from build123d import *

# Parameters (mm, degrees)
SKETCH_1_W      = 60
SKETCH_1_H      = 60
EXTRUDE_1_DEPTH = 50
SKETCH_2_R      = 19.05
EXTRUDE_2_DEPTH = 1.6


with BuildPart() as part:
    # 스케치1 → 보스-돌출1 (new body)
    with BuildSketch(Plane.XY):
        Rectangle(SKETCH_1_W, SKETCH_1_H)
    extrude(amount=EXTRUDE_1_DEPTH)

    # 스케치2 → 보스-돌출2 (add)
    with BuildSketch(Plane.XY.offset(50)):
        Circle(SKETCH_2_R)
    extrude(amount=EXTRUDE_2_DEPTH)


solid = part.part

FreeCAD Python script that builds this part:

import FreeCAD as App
import Part
import Sketcher
Q = App.Units.Quantity

doc = App.newDocument("Part")
body = doc.addObject("PartDesign::Body", "Body")

sketch1 = body.newObject("Sketcher::SketchObject", "Sketch")
sketch1.AttachmentSupport = (doc.getObject("XY_Plane"), [""])
sketch1.MapMode = "FlatFace"
sketch1.addGeometry(Part.LineSegment(App.Vector(-30, 30, 0), App.Vector(-30, -30, 0)), False)
sketch1.addGeometry(Part.LineSegment(App.Vector(-30, -30, 0), App.Vector(30, -30, 0)), False)
sketch1.addGeometry(Part.LineSegment(App.Vector(30, -30, 0), App.Vector(30, 30, 0)), False)
sketch1.addGeometry(Part.LineSegment(App.Vector(30, 30, 0), App.Vector(-30, 30, 0)), False)
sketch1.addConstraint(Sketcher.Constraint("Coincident", 0, 2, 1, 1))
sketch1.addConstraint(Sketcher.Constraint("Coincident", 1, 2, 2, 1))
sketch1.addConstraint(Sketcher.Constraint("Coincident", 2, 2, 3, 1))
sketch1.addConstraint(Sketcher.Constraint("Coincident", 3, 2, 0, 1))
sketch1.addConstraint(Sketcher.Constraint("Vertical", 0))
sketch1.addConstraint(Sketcher.Constraint("Horizontal", 1))
sketch1.addConstraint(Sketcher.Constraint("Vertical", 2))
sketch1.addConstraint(Sketcher.Constraint("Horizontal", 3))
sketch1.addConstraint(Sketcher.Constraint("Symmetric", 0, 2, 2, 2, -1, 1))
sketch1.addConstraint(Sketcher.Constraint("Equal", 3, 0))
sketch1.addConstraint(Sketcher.Constraint("DistanceX", 1, 1, 1, 2, Q("60 mm")))
pad1 = body.newObject("PartDesign::Pad", "Pad")
pad1.Profile = sketch1
pad1.Length = 50

sketch2 = body.newObject("Sketcher::SketchObject", "Sketch001")
sketch2.AttachmentSupport = (doc.getObject("XY_Plane"), [""])
sketch2.MapMode = "FlatFace"
sketch2.AttachmentOffset = App.Placement(App.Vector(0, 0, 50), App.Rotation())
sketch2.addGeometry(Part.Circle(App.Vector(0, 0, 0), App.Vector(0, 0, 1), 19), False)
sketch2.addConstraint(Sketcher.Constraint("Coincident", 0, 3, -1, 1))
sketch2.addConstraint(Sketcher.Constraint("Diameter", 0, Q("38.1 mm")))
pad2 = body.newObject("PartDesign::Pad", "Pad001")
pad2.Profile = sketch2
pad2.Length = 1.6

doc.recompute()
